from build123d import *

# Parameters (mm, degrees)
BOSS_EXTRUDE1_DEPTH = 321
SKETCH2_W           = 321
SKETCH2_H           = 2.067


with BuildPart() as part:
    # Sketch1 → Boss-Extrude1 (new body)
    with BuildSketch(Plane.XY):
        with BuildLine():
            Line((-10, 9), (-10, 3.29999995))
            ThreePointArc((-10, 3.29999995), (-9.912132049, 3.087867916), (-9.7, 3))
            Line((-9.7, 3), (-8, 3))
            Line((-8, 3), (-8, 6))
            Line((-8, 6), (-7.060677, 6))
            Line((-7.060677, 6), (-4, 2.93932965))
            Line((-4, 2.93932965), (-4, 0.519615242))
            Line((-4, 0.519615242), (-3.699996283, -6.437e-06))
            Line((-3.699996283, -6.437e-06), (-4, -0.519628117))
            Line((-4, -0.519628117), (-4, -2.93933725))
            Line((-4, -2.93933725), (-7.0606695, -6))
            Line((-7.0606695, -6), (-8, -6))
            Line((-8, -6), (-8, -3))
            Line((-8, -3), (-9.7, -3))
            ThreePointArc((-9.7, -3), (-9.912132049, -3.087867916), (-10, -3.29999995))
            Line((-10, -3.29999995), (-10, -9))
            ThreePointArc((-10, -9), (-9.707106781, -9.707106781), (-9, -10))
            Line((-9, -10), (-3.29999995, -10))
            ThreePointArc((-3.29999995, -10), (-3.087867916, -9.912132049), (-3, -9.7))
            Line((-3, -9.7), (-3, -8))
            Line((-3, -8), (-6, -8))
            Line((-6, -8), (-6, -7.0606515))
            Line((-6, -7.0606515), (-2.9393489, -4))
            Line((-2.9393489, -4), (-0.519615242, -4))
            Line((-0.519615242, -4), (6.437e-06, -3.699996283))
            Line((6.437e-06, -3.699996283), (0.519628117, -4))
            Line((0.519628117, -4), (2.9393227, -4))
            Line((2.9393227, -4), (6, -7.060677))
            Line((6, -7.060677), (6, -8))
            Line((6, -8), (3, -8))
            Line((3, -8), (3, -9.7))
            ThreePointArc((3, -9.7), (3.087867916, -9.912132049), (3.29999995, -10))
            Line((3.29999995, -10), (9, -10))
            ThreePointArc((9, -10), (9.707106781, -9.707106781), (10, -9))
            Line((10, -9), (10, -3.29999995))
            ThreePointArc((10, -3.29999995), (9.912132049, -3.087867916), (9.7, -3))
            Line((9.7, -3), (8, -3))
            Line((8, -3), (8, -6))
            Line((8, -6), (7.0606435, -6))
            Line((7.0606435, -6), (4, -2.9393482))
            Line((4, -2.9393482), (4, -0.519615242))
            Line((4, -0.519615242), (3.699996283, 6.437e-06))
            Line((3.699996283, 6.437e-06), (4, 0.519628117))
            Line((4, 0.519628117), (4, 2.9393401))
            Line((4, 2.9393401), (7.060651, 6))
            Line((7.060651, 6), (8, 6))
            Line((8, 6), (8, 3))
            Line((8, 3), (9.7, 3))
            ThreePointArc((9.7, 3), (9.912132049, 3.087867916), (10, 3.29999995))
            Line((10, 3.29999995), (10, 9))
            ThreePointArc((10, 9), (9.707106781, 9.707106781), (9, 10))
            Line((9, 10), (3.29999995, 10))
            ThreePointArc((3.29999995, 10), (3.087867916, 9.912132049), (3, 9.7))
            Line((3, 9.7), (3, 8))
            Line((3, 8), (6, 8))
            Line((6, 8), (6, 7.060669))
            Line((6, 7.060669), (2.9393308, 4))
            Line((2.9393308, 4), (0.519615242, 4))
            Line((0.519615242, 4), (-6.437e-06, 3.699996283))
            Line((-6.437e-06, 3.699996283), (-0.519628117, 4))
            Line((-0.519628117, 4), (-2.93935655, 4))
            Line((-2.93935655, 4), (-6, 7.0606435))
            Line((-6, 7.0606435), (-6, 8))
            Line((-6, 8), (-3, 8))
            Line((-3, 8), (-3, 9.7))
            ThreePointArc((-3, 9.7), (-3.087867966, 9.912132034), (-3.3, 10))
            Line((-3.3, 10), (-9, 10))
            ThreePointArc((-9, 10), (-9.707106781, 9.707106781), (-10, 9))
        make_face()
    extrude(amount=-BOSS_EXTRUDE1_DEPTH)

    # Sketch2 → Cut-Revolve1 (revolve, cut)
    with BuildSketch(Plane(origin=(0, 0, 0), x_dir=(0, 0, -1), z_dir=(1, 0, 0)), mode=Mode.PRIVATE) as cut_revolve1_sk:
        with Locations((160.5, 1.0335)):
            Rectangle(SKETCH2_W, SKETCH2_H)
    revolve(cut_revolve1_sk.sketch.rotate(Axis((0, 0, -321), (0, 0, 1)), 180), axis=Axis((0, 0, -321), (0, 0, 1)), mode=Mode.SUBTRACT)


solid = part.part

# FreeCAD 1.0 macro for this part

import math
import FreeCAD as App
import Part
import Sketcher
Q = App.Units.Quantity


def add_polygon(sketch, points):
    """Adds a closed chain of lines whose ends are joined by coincident constraints."""
    first, n = sketch.GeometryCount, len(points)
    for a, b in zip(points, points[1:] + points[:1]):
        sketch.addGeometry(Part.LineSegment(App.Vector(*a, 0), App.Vector(*b, 0)), False)
    for i in range(n):
        sketch.addConstraint(Sketcher.Constraint("Coincident", first + i, 2, first + (i + 1) % n, 1))

doc = App.newDocument("Part")
body = doc.addObject("PartDesign::Body", "Body")

# Sketch on XY plane
sketch1 = body.newObject("Sketcher::SketchObject", "Sketch")
sketch1.AttachmentSupport = (doc.getObject("XY_Plane"), [""])
sketch1.MapMode = "FlatFace"
sketch1.addGeometry(Part.LineSegment(App.Vector(-10, 9, 0), App.Vector(-10, 3.3, 0)), False)
sketch1.addGeometry(Part.ArcOfCircle(Part.Circle(App.Vector(-9.7, 3.3, 0), App.Vector(0, 0, 1), 0.3), math.radians(179.999989), math.radians(270.000021)), False)
sketch1.addGeometry(Part.LineSegment(App.Vector(-9.7, 3, 0), App.Vector(-8, 3, 0)), False)
sketch1.addGeometry(Part.LineSegment(App.Vector(-8, 3, 0), App.Vector(-8, 6, 0)), False)
sketch1.addGeometry(Part.LineSegment(App.Vector(-8, 6, 0), App.Vector(-7.060677, 6, 0)), False)
sketch1.addGeometry(Part.LineSegment(App.Vector(-7.060677, 6, 0), App.Vector(-4, 2.93933, 0)), False)
sketch1.addGeometry(Part.LineSegment(App.Vector(-4, 2.93933, 0), App.Vector(-4, 0.519615, 0)), False)
sketch1.addGeometry(Part.LineSegment(App.Vector(-4, 0.519615, 0), App.Vector(-3.699996, -0.000006, 0)), False)
sketch1.addGeometry(Part.LineSegment(App.Vector(-3.699996, -0.000006, 0), App.Vector(-4, -0.519628, 0)), False)
sketch1.addGeometry(Part.LineSegment(App.Vector(-4, -0.519628, 0), App.Vector(-4, -2.939337, 0)), False)
sketch1.addGeometry(Part.LineSegment(App.Vector(-4, -2.939337, 0), App.Vector(-7.06067, -6, 0)), False)
sketch1.addGeometry(Part.LineSegment(App.Vector(-7.06067, -6, 0), App.Vector(-8, -6, 0)), False)
sketch1.addGeometry(Part.LineSegment(App.Vector(-8, -6, 0), App.Vector(-8, -3, 0)), False)
sketch1.addGeometry(Part.LineSegment(App.Vector(-8, -3, 0), App.Vector(-9.7, -3, 0)), False)
sketch1.addGeometry(Part.ArcOfCircle(Part.Circle(App.Vector(-9.7, -3.3, 0), App.Vector(0, 0, 1), 0.3), math.radians(89.999979), math.radians(180.000011)), False)
sketch1.addGeometry(Part.LineSegment(App.Vector(-10, -3.3, 0), App.Vector(-10, -9, 0)), False)
sketch1.addGeometry(Part.ArcOfCircle(Part.Circle(App.Vector(-9, -9, 0), App.Vector(0, 0, 1), 1), math.radians(-180), math.radians(-90)), False)
sketch1.addGeometry(Part.LineSegment(App.Vector(-9, -10, 0), App.Vector(-3.3, -10, 0)), False)
sketch1.addGeometry(Part.ArcOfCircle(Part.Circle(App.Vector(-3.3, -9.7, 0), App.Vector(0, 0, 1), 0.3), math.radians(-90.000011), math.radians(0.000021)), False)
sketch1.addGeometry(Part.LineSegment(App.Vector(-3, -9.7, 0), App.Vector(-3, -8, 0)), False)
sketch1.addGeometry(Part.LineSegment(App.Vector(-3, -8, 0), App.Vector(-6, -8, 0)), False)
sketch1.addGeometry(Part.LineSegment(App.Vector(-6, -8, 0), App.Vector(-6, -7.060651, 0)), False)
sketch1.addGeometry(Part.LineSegment(App.Vector(-6, -7.060651, 0), App.Vector(-2.939349, -4, 0)), False)
sketch1.addGeometry(Part.LineSegment(App.Vector(-2.939349, -4, 0), App.Vector(-0.519615, -4, 0)), False)
sketch1.addGeometry(Part.LineSegment(App.Vector(-0.519615, -4, 0), App.Vector(0.000006, -3.699996, 0)), False)
sketch1.addGeometry(Part.LineSegment(App.Vector(0.000006, -3.699996, 0), App.Vector(0.519628, -4, 0)), False)
sketch1.addGeometry(Part.LineSegment(App.Vector(0.519628, -4, 0), App.Vector(2.939323, -4, 0)), False)
sketch1.addGeometry(Part.LineSegment(App.Vector(2.939323, -4, 0), App.Vector(6, -7.060677, 0)), False)
sketch1.addGeometry(Part.LineSegment(App.Vector(6, -7.060677, 0), App.Vector(6, -8, 0)), False)
sketch1.addGeometry(Part.LineSegment(App.Vector(6, -8, 0), App.Vector(3, -8, 0)), False)
sketch1.addGeometry(Part.LineSegment(App.Vector(3, -8, 0), App.Vector(3, -9.7, 0)), False)
sketch1.addGeometry(Part.ArcOfCircle(Part.Circle(App.Vector(3.3, -9.7, 0), App.Vector(0, 0, 1), 0.3), math.radians(179.999979), math.radians(270.000011)), False)
sketch1.addGeometry(Part.LineSegment(App.Vector(3.3, -10, 0), App.Vector(9, -10, 0)), False)
sketch1.addGeometry(Part.ArcOfCircle(Part.Circle(App.Vector(9, -9, 0), App.Vector(0, 0, 1), 1), math.radians(-90), math.radians(0)), False)
sketch1.addGeometry(Part.LineSegment(App.Vector(10, -9, 0), App.Vector(10, -3.3, 0)), False)
sketch1.addGeometry(Part.ArcOfCircle(Part.Circle(App.Vector(9.7, -3.3, 0), App.Vector(0, 0, 1), 0.3), math.radians(-0.000011), math.radians(90.000021)), False)
sketch1.addGeometry(Part.LineSegment(App.Vector(9.7, -3, 0), App.Vector(8, -3, 0)), False)
sketch1.addGeometry(Part.LineSegment(App.Vector(8, -3, 0), App.Vector(8, -6, 0)), False)
sketch1.addGeometry(Part.LineSegment(App.Vector(8, -6, 0), App.Vector(7.060644, -6, 0)), False)
sketch1.addGeometry(Part.LineSegment(App.Vector(7.060644, -6, 0), App.Vector(4, -2.939348, 0)), False)
sketch1.addGeometry(Part.LineSegment(App.Vector(4, -2.939348, 0), App.Vector(4, -0.519615, 0)), False)
sketch1.addGeometry(Part.LineSegment(App.Vector(4, -0.519615, 0), App.Vector(3.699996, 0.000006, 0)), False)
sketch1.addGeometry(Part.LineSegment(App.Vector(3.699996, 0.000006, 0), App.Vector(4, 0.519628, 0)), False)
sketch1.addGeometry(Part.LineSegment(App.Vector(4, 0.519628, 0), App.Vector(4, 2.93934, 0)), False)
sketch1.addGeometry(Part.LineSegment(App.Vector(4, 2.93934, 0), App.Vector(7.060651, 6, 0)), False)
sketch1.addGeometry(Part.LineSegment(App.Vector(7.060651, 6, 0), App.Vector(8, 6, 0)), False)
sketch1.addGeometry(Part.LineSegment(App.Vector(8, 6, 0), App.Vector(8, 3, 0)), False)
sketch1.addGeometry(Part.LineSegment(App.Vector(8, 3, 0), App.Vector(9.7, 3, 0)), False)
sketch1.addGeometry(Part.ArcOfCircle(Part.Circle(App.Vector(9.7, 3.3, 0), App.Vector(0, 0, 1), 0.3), math.radians(-90.000021), math.radians(0.000011)), False)
sketch1.addGeometry(Part.LineSegment(App.Vector(10, 3.3, 0), App.Vector(10, 9, 0)), False)
sketch1.addGeometry(Part.ArcOfCircle(Part.Circle(App.Vector(9, 9, 0), App.Vector(0, 0, 1), 1), math.radians(0), math.radians(90)), False)
sketch1.addGeometry(Part.LineSegment(App.Vector(9, 10, 0), App.Vector(3.3, 10, 0)), False)
sketch1.addGeometry(Part.ArcOfCircle(Part.Circle(App.Vector(3.3, 9.7, 0), App.Vector(0, 0, 1), 0.3), math.radians(89.999989), math.radians(180.000021)), False)
sketch1.addGeometry(Part.LineSegment(App.Vector(3, 9.7, 0), App.Vector(3, 8, 0)), False)
sketch1.addGeometry(Part.LineSegment(App.Vector(3, 8, 0), App.Vector(6, 8, 0)), False)
sketch1.addGeometry(Part.LineSegment(App.Vector(6, 8, 0), App.Vector(6, 7.060669, 0)), False)
sketch1.addGeometry(Part.LineSegment(App.Vector(6, 7.060669, 0), App.Vector(2.939331, 4, 0)), False)
sketch1.addGeometry(Part.LineSegment(App.Vector(2.939331, 4, 0), App.Vector(0.519615, 4, 0)), False)
sketch1.addGeometry(Part.LineSegment(App.Vector(0.519615, 4, 0), App.Vector(-0.000006, 3.699996, 0)), False)
sketch1.addGeometry(Part.LineSegment(App.Vector(-0.000006, 3.699996, 0), App.Vector(-0.519628, 4, 0)), False)
sketch1.addGeometry(Part.LineSegment(App.Vector(-0.519628, 4, 0), App.Vector(-2.939357, 4, 0)), False)
sketch1.addGeometry(Part.LineSegment(App.Vector(-2.939357, 4, 0), App.Vector(-6, 7.060644, 0)), False)
sketch1.addGeometry(Part.LineSegment(App.Vector(-6, 7.060644, 0), App.Vector(-6, 8, 0)), False)
sketch1.addGeometry(Part.LineSegment(App.Vector(-6, 8, 0), App.Vector(-3, 8, 0)), False)
sketch1.addGeometry(Part.LineSegment(App.Vector(-3, 8, 0), App.Vector(-3, 9.7, 0)), False)
sketch1.addGeometry(Part.ArcOfCircle(Part.Circle(App.Vector(-3.3, 9.7, 0), App.Vector(0, 0, 1), 0.3), math.radians(0), math.radians(90)), False)
sketch1.addGeometry(Part.LineSegment(App.Vector(-3.3, 10, 0), App.Vector(-9, 10, 0)), False)
sketch1.addGeometry(Part.ArcOfCircle(Part.Circle(App.Vector(-9, 9, 0), App.Vector(0, 0, 1), 1), math.radians(90), math.radians(180)), False)
sketch1.addConstraint(Sketcher.Constraint("Tangent", 0, 2, 1, 1))
sketch1.addConstraint(Sketcher.Constraint("Tangent", 1, 2, 2, 1))
sketch1.addConstraint(Sketcher.Constraint("Coincident", 2, 2, 3, 1))
sketch1.addConstraint(Sketcher.Constraint("Coincident", 3, 2, 4, 1))
sketch1.addConstraint(Sketcher.Constraint("Coincident", 4, 2, 5, 1))
sketch1.addConstraint(Sketcher.Constraint("Coincident", 5, 2, 6, 1))
sketch1.addConstraint(Sketcher.Constraint("Coincident", 6, 2, 7, 1))
sketch1.addConstraint(Sketcher.Constraint("Coincident", 7, 2, 8, 1))
sketch1.addConstraint(Sketcher.Constraint("Coincident", 8, 2, 9, 1))
sketch1.addConstraint(Sketcher.Constraint("Coincident", 9, 2, 10, 1))
sketch1.addConstraint(Sketcher.Constraint("Coincident", 10, 2, 11, 1))
sketch1.addConstraint(Sketcher.Constraint("Coincident", 11, 2, 12, 1))
sketch1.addConstraint(Sketcher.Constraint("Coincident", 12, 2, 13, 1))
sketch1.addConstraint(Sketcher.Constraint("Tangent", 13, 2, 14, 1))
sketch1.addConstraint(Sketcher.Constraint("Tangent", 14, 2, 15, 1))
sketch1.addConstraint(Sketcher.Constraint("Tangent", 15, 2, 16, 1))
sketch1.addConstraint(Sketcher.Constraint("Tangent", 16, 2, 17, 1))
sketch1.addConstraint(Sketcher.Constraint("Tangent", 17, 2, 18, 1))
sketch1.addConstraint(Sketcher.Constraint("Tangent", 18, 2, 19, 1))
sketch1.addConstraint(Sketcher.Constraint("Coincident", 19, 2, 20, 1))
sketch1.addConstraint(Sketcher.Constraint("Coincident", 20, 2, 21, 1))
sketch1.addConstraint(Sketcher.Constraint("Coincident", 21, 2, 22, 1))
sketch1.addConstraint(Sketcher.Constraint("Coincident", 22, 2, 23, 1))
sketch1.addConstraint(Sketcher.Constraint("Coincident", 23, 2, 24, 1))
sketch1.addConstraint(Sketcher.Constraint("Coincident", 24, 2, 25, 1))
sketch1.addConstraint(Sketcher.Constraint("Coincident", 25, 2, 26, 1))
sketch1.addConstraint(Sketcher.Constraint("Coincident", 26, 2, 27, 1))
sketch1.addConstraint(Sketcher.Constraint("Coincident", 27, 2, 28, 1))
sketch1.addConstraint(Sketcher.Constraint("Coincident", 28, 2, 29, 1))
sketch1.addConstraint(Sketcher.Constraint("Coincident", 29, 2, 30, 1))
sketch1.addConstraint(Sketcher.Constraint("Tangent", 30, 2, 31, 1))
sketch1.addConstraint(Sketcher.Constraint("Tangent", 31, 2, 32, 1))
sketch1.addConstraint(Sketcher.Constraint("Tangent", 32, 2, 33, 1))
sketch1.addConstraint(Sketcher.Constraint("Tangent", 33, 2, 34, 1))
sketch1.addConstraint(Sketcher.Constraint("Tangent", 34, 2, 35, 1))
sketch1.addConstraint(Sketcher.Constraint("Tangent", 35, 2, 36, 1))
sketch1.addConstraint(Sketcher.Constraint("Coincident", 36, 2, 37, 1))
sketch1.addConstraint(Sketcher.Constraint("Coincident", 37, 2, 38, 1))
sketch1.addConstraint(Sketcher.Constraint("Coincident", 38, 2, 39, 1))
sketch1.addConstraint(Sketcher.Constraint("Coincident", 39, 2, 40, 1))
sketch1.addConstraint(Sketcher.Constraint("Coincident", 40, 2, 41, 1))
sketch1.addConstraint(Sketcher.Constraint("Coincident", 41, 2, 42, 1))
sketch1.addConstraint(Sketcher.Constraint("Coincident", 42, 2, 43, 1))
sketch1.addConstraint(Sketcher.Constraint("Coincident", 43, 2, 44, 1))
sketch1.addConstraint(Sketcher.Constraint("Coincident", 44, 2, 45, 1))
sketch1.addConstraint(Sketcher.Constraint("Coincident", 45, 2, 46, 1))
sketch1.addConstraint(Sketcher.Constraint("Coincident", 46, 2, 47, 1))
sketch1.addConstraint(Sketcher.Constraint("Tangent", 47, 2, 48, 1))
sketch1.addConstraint(Sketcher.Constraint("Tangent", 48, 2, 49, 1))
sketch1.addConstraint(Sketcher.Constraint("Tangent", 49, 2, 50, 1))
sketch1.addConstraint(Sketcher.Constraint("Tangent", 50, 2, 51, 1))
sketch1.addConstraint(Sketcher.Constraint("Tangent", 51, 2, 52, 1))
sketch1.addConstraint(Sketcher.Constraint("Tangent", 52, 2, 53, 1))
sketch1.addConstraint(Sketcher.Constraint("Coincident", 53, 2, 54, 1))
sketch1.addConstraint(Sketcher.Constraint("Coincident", 54, 2, 55, 1))
sketch1.addConstraint(Sketcher.Constraint("Coincident", 55, 2, 56, 1))
sketch1.addConstraint(Sketcher.Constraint("Coincident", 56, 2, 57, 1))
sketch1.addConstraint(Sketcher.Constraint("Coincident", 57, 2, 58, 1))
sketch1.addConstraint(Sketcher.Constraint("Coincident", 58, 2, 59, 1))
sketch1.addConstraint(Sketcher.Constraint("Coincident", 59, 2, 60, 1))
sketch1.addConstraint(Sketcher.Constraint("Coincident", 60, 2, 61, 1))
sketch1.addConstraint(Sketcher.Constraint("Coincident", 61, 2, 62, 1))
sketch1.addConstraint(Sketcher.Constraint("Coincident", 62, 2, 63, 1))
sketch1.addConstraint(Sketcher.Constraint("Coincident", 63, 2, 64, 1))
sketch1.addConstraint(Sketcher.Constraint("Tangent", 64, 2, 65, 1))
sketch1.addConstraint(Sketcher.Constraint("Tangent", 65, 2, 66, 1))
sketch1.addConstraint(Sketcher.Constraint("Tangent", 66, 2, 67, 1))
sketch1.addConstraint(Sketcher.Constraint("Tangent", 67, 2, 0, 1))
sketch1.addConstraint(Sketcher.Constraint("Vertical", 0))
sketch1.addConstraint(Sketcher.Constraint("Horizontal", 2))
sketch1.addConstraint(Sketcher.Constraint("Vertical", 3))
sketch1.addConstraint(Sketcher.Constraint("Horizontal", 4))
sketch1.addConstraint(Sketcher.Constraint("Vertical", 6))
sketch1.addConstraint(Sketcher.Constraint("Vertical", 9))
sketch1.addConstraint(Sketcher.Constraint("Horizontal", 11))
sketch1.addConstraint(Sketcher.Constraint("Vertical", 12))
sketch1.addConstraint(Sketcher.Constraint("Horizontal", 13))
sketch1.addConstraint(Sketcher.Constraint("Vertical", 15))
sketch1.addConstraint(Sketcher.Constraint("Horizontal", 17))
sketch1.addConstraint(Sketcher.Constraint("Vertical", 19))
sketch1.addConstraint(Sketcher.Constraint("Horizontal", 20))
sketch1.addConstraint(Sketcher.Constraint("Vertical", 21))
sketch1.addConstraint(Sketcher.Constraint("Horizontal", 23))
sketch1.addConstraint(Sketcher.Constraint("Horizontal", 26))
sketch1.addConstraint(Sketcher.Constraint("Vertical", 28))
sketch1.addConstraint(Sketcher.Constraint("Horizontal", 29))
sketch1.addConstraint(Sketcher.Constraint("Vertical", 30))
sketch1.addConstraint(Sketcher.Constraint("Horizontal", 32))
sketch1.addConstraint(Sketcher.Constraint("Vertical", 34))
sketch1.addConstraint(Sketcher.Constraint("Horizontal", 36))
sketch1.addConstraint(Sketcher.Constraint("Vertical", 37))
sketch1.addConstraint(Sketcher.Constraint("Horizontal", 38))
sketch1.addConstraint(Sketcher.Constraint("Vertical", 40))
sketch1.addConstraint(Sketcher.Constraint("Vertical", 43))
sketch1.addConstraint(Sketcher.Constraint("Horizontal", 45))
sketch1.addConstraint(Sketcher.Constraint("Vertical", 46))
sketch1.addConstraint(Sketcher.Constraint("Horizontal", 47))
sketch1.addConstraint(Sketcher.Constraint("Vertical", 49))
sketch1.addConstraint(Sketcher.Constraint("Horizontal", 51))
sketch1.addConstraint(Sketcher.Constraint("Vertical", 53))
sketch1.addConstraint(Sketcher.Constraint("Horizontal", 54))
sketch1.addConstraint(Sketcher.Constraint("Vertical", 55))
sketch1.addConstraint(Sketcher.Constraint("Horizontal", 57))
sketch1.addConstraint(Sketcher.Constraint("Horizontal", 60))
sketch1.addConstraint(Sketcher.Constraint("Vertical", 62))
sketch1.addConstraint(Sketcher.Constraint("Horizontal", 63))
sketch1.addConstraint(Sketcher.Constraint("Vertical", 64))
sketch1.addConstraint(Sketcher.Constraint("Horizontal", 66))
sketch1.addConstraint(Sketcher.Constraint("Equal", 1, 14))
sketch1.addConstraint(Sketcher.Constraint("Equal", 14, 18))
sketch1.addConstraint(Sketcher.Constraint("Equal", 18, 31))
sketch1.addConstraint(Sketcher.Constraint("Equal", 16, 33))
sketch1.addConstraint(Sketcher.Constraint("Equal", 31, 35))
sketch1.addConstraint(Sketcher.Constraint("Equal", 35, 48))
sketch1.addConstraint(Sketcher.Constraint("Equal", 33, 50))
sketch1.addConstraint(Sketcher.Constraint("Equal", 48, 52))
sketch1.addConstraint(Sketcher.Constraint("Equal", 52, 65))
sketch1.addConstraint(Sketcher.Constraint("Equal", 50, 67))
sketch1.addConstraint(Sketcher.Constraint("Symmetric", 1, 3, 35, 3, -1, 1))
sketch1.addConstraint(Sketcher.Constraint("Symmetric", 14, 3, 48, 3, -1, 1))
sketch1.addConstraint(Sketcher.Constraint("Symmetric", 18, 3, 52, 3, -1, 1))
sketch1.addConstraint(Sketcher.Constraint("Symmetric", 31, 3, 65, 3, -1, 1))
sketch1.addConstraint(Sketcher.Constraint("Symmetric", 3, 2, 37, 2, -1, 1))
sketch1.addConstraint(Sketcher.Constraint("Symmetric", 6, 2, 40, 2, -1, 1))
sketch1.addConstraint(Sketcher.Constraint("Symmetric", 7, 2, 41, 2, -1, 1))
sketch1.addConstraint(Sketcher.Constraint("Symmetric", 8, 2, 42, 2, -1, 1))
sketch1.addConstraint(Sketcher.Constraint("Symmetric", 11, 2, 45, 2, -1, 1))
sketch1.addConstraint(Sketcher.Constraint("Symmetric", 20, 2, 54, 2, -1, 1))
sketch1.addConstraint(Sketcher.Constraint("Symmetric", 23, 2, 57, 2, -1, 1))
sketch1.addConstraint(Sketcher.Constraint("Symmetric", 24, 2, 58, 2, -1, 1))
sketch1.addConstraint(Sketcher.Constraint("Symmetric", 25, 2, 59, 2, -1, 1))
sketch1.addConstraint(Sketcher.Constraint("Symmetric", 28, 2, 62, 2, -1, 1))
sketch1.addConstraint(Sketcher.Constraint("Symmetric", 18, 3, 31, 3, -2))
sketch1.addConstraint(Sketcher.Constraint("Symmetric", 14, 3, 35, 3, -2))
sketch1.addConstraint(Sketcher.Constraint("Symmetric", 20, 2, 28, 2, -2))
sketch1.addConstraint(Sketcher.Constraint("Symmetric", 11, 2, 37, 2, -2))
sketch1.addConstraint(Sketcher.Constraint("Symmetric", 5, 2, 9, 2, -1))
sketch1.addConstraint(Sketcher.Constraint("Symmetric", 26, 2, 56, 2, -1))
sketch1.addConstraint(Sketcher.Constraint("Parallel", 10, 22))
sketch1.addConstraint(Sketcher.Constraint("Perpendicular", 7, 24))
sketch1.addConstraint(Sketcher.Constraint("Perpendicular", 8, 25))
sketch1.addConstraint(Sketcher.Constraint("Perpendicular", 22, 27))
sketch1.addConstraint(Sketcher.Constraint("Parallel", 27, 39))
sketch1.addConstraint(Sketcher.Constraint("Perpendicular", 27, 44))
sketch1.addConstraint(Sketcher.Constraint("Parallel", 44, 56))
sketch1.addConstraint(Sketcher.Constraint("Perpendicular", 56, 61))
sketch1.addConstraint(Sketcher.Constraint("Equal", 66, 0))
sketch1.addConstraint(Sketcher.Constraint("Equal", 63, 3))
sketch1.addConstraint(Sketcher.Constraint("Equal", 57, 6))
sketch1.addConstraint(Sketcher.Constraint("Equal", 47, 19))
sketch1.addConstraint(Sketcher.Constraint("Equal", 45, 21))
sketch1.addConstraint(Sketcher.Constraint("Equal", 4, 28))
sketch1.addConstraint(Sketcher.Constraint("Equal", 23, 40))
sketch1.addConstraint(Sketcher.Constraint("Equal", 11, 55))
sketch1.addConstraint(Sketcher.Constraint("Equal", 38, 62))
sketch1.addConstraint(Sketcher.Constraint("Equal", 7, 8))
sketch1.addConstraint(Sketcher.Constraint("Equal", 8, 24))
sketch1.addConstraint(Sketcher.Constraint("Radius", 16, Q("1 mm")))
sketch1.addConstraint(Sketcher.Constraint("Radius", 1, Q("0.3 mm")))
sketch1.addConstraint(Sketcher.Constraint("DistanceX", 20, 2, 20, 1, Q("3 mm")))
sketch1.addConstraint(Sketcher.Constraint("Angle", 7, Q("-60 deg")))
sketch1.addConstraint(Sketcher.Constraint("Angle", 22, Q("45.000004 deg")))
sketch1.addConstraint(Sketcher.Constraint("DistanceX", 2, 1, 2, 2, Q("1.7 mm")))
sketch1.addConstraint(Sketcher.Constraint("DistanceX", 17, 1, 17, 2, Q("5.7 mm")))
sketch1.addConstraint(Sketcher.Constraint("DistanceX", 16, 3, -1, 1, Q("9 mm")))
sketch1.addConstraint(Sketcher.Constraint("DistanceY", 16, 3, -1, 1, Q("9 mm")))
sketch1.addConstraint(Sketcher.Constraint("DistanceX", 5, 2, -1, 1, Q("4 mm")))
sketch1.addConstraint(Sketcher.Constraint("DistanceY", 22, 2, -1, 1, Q("4 mm")))
sketch1.addConstraint(Sketcher.Constraint("DistanceX", 11, 2, 11, 1, Q("0.93933 mm")))
sketch1.addConstraint(Sketcher.Constraint("DistanceX", 45, 1, 45, 2, Q("0.939349 mm")))
sketch1.addConstraint(Sketcher.Constraint("DistanceX", 60, 2, 60, 1, Q("2.419728 mm")))
sketch1.addConstraint(Sketcher.Constraint("DistanceX", 23, 1, 23, 2, Q("2.419734 mm")))
pad1 = body.newObject("PartDesign::Pad", "Pad")
pad1.Profile = sketch1
pad1.Length = 321
pad1.Reversed = True

# Sketch on YZ plane
sketch2 = body.newObject("Sketcher::SketchObject", "Sketch001")
sketch2.AttachmentSupport = (doc.getObject("YZ_Plane"), [""])
sketch2.MapMode = "FlatFace"
add_polygon(sketch2, [(2.067, 0), (0, 0), (0, -321), (2.067, -321)])  # lines 0-3
sketch2.addConstraint(Sketcher.Constraint("Horizontal", 0))
sketch2.addConstraint(Sketcher.Constraint("Vertical", 1))
sketch2.addConstraint(Sketcher.Constraint("Horizontal", 2))
sketch2.addConstraint(Sketcher.Constraint("Vertical", 3))
sketch2.addConstraint(Sketcher.Constraint("Coincident", 0, 2, -1, 1))
sketch2.addConstraint(Sketcher.Constraint("DistanceY", 1, 2, 1, 1, Q("321 mm")))
sketch2.addConstraint(Sketcher.Constraint("DistanceX", 0, 2, 0, 1, Q("2.067 mm")))
groove = body.newObject("PartDesign::Groove", "Groove")
groove.Profile = sketch2
groove.ReferenceAxis = (sketch2, ["V_Axis"])
groove.Angle = 360

doc.recompute()
